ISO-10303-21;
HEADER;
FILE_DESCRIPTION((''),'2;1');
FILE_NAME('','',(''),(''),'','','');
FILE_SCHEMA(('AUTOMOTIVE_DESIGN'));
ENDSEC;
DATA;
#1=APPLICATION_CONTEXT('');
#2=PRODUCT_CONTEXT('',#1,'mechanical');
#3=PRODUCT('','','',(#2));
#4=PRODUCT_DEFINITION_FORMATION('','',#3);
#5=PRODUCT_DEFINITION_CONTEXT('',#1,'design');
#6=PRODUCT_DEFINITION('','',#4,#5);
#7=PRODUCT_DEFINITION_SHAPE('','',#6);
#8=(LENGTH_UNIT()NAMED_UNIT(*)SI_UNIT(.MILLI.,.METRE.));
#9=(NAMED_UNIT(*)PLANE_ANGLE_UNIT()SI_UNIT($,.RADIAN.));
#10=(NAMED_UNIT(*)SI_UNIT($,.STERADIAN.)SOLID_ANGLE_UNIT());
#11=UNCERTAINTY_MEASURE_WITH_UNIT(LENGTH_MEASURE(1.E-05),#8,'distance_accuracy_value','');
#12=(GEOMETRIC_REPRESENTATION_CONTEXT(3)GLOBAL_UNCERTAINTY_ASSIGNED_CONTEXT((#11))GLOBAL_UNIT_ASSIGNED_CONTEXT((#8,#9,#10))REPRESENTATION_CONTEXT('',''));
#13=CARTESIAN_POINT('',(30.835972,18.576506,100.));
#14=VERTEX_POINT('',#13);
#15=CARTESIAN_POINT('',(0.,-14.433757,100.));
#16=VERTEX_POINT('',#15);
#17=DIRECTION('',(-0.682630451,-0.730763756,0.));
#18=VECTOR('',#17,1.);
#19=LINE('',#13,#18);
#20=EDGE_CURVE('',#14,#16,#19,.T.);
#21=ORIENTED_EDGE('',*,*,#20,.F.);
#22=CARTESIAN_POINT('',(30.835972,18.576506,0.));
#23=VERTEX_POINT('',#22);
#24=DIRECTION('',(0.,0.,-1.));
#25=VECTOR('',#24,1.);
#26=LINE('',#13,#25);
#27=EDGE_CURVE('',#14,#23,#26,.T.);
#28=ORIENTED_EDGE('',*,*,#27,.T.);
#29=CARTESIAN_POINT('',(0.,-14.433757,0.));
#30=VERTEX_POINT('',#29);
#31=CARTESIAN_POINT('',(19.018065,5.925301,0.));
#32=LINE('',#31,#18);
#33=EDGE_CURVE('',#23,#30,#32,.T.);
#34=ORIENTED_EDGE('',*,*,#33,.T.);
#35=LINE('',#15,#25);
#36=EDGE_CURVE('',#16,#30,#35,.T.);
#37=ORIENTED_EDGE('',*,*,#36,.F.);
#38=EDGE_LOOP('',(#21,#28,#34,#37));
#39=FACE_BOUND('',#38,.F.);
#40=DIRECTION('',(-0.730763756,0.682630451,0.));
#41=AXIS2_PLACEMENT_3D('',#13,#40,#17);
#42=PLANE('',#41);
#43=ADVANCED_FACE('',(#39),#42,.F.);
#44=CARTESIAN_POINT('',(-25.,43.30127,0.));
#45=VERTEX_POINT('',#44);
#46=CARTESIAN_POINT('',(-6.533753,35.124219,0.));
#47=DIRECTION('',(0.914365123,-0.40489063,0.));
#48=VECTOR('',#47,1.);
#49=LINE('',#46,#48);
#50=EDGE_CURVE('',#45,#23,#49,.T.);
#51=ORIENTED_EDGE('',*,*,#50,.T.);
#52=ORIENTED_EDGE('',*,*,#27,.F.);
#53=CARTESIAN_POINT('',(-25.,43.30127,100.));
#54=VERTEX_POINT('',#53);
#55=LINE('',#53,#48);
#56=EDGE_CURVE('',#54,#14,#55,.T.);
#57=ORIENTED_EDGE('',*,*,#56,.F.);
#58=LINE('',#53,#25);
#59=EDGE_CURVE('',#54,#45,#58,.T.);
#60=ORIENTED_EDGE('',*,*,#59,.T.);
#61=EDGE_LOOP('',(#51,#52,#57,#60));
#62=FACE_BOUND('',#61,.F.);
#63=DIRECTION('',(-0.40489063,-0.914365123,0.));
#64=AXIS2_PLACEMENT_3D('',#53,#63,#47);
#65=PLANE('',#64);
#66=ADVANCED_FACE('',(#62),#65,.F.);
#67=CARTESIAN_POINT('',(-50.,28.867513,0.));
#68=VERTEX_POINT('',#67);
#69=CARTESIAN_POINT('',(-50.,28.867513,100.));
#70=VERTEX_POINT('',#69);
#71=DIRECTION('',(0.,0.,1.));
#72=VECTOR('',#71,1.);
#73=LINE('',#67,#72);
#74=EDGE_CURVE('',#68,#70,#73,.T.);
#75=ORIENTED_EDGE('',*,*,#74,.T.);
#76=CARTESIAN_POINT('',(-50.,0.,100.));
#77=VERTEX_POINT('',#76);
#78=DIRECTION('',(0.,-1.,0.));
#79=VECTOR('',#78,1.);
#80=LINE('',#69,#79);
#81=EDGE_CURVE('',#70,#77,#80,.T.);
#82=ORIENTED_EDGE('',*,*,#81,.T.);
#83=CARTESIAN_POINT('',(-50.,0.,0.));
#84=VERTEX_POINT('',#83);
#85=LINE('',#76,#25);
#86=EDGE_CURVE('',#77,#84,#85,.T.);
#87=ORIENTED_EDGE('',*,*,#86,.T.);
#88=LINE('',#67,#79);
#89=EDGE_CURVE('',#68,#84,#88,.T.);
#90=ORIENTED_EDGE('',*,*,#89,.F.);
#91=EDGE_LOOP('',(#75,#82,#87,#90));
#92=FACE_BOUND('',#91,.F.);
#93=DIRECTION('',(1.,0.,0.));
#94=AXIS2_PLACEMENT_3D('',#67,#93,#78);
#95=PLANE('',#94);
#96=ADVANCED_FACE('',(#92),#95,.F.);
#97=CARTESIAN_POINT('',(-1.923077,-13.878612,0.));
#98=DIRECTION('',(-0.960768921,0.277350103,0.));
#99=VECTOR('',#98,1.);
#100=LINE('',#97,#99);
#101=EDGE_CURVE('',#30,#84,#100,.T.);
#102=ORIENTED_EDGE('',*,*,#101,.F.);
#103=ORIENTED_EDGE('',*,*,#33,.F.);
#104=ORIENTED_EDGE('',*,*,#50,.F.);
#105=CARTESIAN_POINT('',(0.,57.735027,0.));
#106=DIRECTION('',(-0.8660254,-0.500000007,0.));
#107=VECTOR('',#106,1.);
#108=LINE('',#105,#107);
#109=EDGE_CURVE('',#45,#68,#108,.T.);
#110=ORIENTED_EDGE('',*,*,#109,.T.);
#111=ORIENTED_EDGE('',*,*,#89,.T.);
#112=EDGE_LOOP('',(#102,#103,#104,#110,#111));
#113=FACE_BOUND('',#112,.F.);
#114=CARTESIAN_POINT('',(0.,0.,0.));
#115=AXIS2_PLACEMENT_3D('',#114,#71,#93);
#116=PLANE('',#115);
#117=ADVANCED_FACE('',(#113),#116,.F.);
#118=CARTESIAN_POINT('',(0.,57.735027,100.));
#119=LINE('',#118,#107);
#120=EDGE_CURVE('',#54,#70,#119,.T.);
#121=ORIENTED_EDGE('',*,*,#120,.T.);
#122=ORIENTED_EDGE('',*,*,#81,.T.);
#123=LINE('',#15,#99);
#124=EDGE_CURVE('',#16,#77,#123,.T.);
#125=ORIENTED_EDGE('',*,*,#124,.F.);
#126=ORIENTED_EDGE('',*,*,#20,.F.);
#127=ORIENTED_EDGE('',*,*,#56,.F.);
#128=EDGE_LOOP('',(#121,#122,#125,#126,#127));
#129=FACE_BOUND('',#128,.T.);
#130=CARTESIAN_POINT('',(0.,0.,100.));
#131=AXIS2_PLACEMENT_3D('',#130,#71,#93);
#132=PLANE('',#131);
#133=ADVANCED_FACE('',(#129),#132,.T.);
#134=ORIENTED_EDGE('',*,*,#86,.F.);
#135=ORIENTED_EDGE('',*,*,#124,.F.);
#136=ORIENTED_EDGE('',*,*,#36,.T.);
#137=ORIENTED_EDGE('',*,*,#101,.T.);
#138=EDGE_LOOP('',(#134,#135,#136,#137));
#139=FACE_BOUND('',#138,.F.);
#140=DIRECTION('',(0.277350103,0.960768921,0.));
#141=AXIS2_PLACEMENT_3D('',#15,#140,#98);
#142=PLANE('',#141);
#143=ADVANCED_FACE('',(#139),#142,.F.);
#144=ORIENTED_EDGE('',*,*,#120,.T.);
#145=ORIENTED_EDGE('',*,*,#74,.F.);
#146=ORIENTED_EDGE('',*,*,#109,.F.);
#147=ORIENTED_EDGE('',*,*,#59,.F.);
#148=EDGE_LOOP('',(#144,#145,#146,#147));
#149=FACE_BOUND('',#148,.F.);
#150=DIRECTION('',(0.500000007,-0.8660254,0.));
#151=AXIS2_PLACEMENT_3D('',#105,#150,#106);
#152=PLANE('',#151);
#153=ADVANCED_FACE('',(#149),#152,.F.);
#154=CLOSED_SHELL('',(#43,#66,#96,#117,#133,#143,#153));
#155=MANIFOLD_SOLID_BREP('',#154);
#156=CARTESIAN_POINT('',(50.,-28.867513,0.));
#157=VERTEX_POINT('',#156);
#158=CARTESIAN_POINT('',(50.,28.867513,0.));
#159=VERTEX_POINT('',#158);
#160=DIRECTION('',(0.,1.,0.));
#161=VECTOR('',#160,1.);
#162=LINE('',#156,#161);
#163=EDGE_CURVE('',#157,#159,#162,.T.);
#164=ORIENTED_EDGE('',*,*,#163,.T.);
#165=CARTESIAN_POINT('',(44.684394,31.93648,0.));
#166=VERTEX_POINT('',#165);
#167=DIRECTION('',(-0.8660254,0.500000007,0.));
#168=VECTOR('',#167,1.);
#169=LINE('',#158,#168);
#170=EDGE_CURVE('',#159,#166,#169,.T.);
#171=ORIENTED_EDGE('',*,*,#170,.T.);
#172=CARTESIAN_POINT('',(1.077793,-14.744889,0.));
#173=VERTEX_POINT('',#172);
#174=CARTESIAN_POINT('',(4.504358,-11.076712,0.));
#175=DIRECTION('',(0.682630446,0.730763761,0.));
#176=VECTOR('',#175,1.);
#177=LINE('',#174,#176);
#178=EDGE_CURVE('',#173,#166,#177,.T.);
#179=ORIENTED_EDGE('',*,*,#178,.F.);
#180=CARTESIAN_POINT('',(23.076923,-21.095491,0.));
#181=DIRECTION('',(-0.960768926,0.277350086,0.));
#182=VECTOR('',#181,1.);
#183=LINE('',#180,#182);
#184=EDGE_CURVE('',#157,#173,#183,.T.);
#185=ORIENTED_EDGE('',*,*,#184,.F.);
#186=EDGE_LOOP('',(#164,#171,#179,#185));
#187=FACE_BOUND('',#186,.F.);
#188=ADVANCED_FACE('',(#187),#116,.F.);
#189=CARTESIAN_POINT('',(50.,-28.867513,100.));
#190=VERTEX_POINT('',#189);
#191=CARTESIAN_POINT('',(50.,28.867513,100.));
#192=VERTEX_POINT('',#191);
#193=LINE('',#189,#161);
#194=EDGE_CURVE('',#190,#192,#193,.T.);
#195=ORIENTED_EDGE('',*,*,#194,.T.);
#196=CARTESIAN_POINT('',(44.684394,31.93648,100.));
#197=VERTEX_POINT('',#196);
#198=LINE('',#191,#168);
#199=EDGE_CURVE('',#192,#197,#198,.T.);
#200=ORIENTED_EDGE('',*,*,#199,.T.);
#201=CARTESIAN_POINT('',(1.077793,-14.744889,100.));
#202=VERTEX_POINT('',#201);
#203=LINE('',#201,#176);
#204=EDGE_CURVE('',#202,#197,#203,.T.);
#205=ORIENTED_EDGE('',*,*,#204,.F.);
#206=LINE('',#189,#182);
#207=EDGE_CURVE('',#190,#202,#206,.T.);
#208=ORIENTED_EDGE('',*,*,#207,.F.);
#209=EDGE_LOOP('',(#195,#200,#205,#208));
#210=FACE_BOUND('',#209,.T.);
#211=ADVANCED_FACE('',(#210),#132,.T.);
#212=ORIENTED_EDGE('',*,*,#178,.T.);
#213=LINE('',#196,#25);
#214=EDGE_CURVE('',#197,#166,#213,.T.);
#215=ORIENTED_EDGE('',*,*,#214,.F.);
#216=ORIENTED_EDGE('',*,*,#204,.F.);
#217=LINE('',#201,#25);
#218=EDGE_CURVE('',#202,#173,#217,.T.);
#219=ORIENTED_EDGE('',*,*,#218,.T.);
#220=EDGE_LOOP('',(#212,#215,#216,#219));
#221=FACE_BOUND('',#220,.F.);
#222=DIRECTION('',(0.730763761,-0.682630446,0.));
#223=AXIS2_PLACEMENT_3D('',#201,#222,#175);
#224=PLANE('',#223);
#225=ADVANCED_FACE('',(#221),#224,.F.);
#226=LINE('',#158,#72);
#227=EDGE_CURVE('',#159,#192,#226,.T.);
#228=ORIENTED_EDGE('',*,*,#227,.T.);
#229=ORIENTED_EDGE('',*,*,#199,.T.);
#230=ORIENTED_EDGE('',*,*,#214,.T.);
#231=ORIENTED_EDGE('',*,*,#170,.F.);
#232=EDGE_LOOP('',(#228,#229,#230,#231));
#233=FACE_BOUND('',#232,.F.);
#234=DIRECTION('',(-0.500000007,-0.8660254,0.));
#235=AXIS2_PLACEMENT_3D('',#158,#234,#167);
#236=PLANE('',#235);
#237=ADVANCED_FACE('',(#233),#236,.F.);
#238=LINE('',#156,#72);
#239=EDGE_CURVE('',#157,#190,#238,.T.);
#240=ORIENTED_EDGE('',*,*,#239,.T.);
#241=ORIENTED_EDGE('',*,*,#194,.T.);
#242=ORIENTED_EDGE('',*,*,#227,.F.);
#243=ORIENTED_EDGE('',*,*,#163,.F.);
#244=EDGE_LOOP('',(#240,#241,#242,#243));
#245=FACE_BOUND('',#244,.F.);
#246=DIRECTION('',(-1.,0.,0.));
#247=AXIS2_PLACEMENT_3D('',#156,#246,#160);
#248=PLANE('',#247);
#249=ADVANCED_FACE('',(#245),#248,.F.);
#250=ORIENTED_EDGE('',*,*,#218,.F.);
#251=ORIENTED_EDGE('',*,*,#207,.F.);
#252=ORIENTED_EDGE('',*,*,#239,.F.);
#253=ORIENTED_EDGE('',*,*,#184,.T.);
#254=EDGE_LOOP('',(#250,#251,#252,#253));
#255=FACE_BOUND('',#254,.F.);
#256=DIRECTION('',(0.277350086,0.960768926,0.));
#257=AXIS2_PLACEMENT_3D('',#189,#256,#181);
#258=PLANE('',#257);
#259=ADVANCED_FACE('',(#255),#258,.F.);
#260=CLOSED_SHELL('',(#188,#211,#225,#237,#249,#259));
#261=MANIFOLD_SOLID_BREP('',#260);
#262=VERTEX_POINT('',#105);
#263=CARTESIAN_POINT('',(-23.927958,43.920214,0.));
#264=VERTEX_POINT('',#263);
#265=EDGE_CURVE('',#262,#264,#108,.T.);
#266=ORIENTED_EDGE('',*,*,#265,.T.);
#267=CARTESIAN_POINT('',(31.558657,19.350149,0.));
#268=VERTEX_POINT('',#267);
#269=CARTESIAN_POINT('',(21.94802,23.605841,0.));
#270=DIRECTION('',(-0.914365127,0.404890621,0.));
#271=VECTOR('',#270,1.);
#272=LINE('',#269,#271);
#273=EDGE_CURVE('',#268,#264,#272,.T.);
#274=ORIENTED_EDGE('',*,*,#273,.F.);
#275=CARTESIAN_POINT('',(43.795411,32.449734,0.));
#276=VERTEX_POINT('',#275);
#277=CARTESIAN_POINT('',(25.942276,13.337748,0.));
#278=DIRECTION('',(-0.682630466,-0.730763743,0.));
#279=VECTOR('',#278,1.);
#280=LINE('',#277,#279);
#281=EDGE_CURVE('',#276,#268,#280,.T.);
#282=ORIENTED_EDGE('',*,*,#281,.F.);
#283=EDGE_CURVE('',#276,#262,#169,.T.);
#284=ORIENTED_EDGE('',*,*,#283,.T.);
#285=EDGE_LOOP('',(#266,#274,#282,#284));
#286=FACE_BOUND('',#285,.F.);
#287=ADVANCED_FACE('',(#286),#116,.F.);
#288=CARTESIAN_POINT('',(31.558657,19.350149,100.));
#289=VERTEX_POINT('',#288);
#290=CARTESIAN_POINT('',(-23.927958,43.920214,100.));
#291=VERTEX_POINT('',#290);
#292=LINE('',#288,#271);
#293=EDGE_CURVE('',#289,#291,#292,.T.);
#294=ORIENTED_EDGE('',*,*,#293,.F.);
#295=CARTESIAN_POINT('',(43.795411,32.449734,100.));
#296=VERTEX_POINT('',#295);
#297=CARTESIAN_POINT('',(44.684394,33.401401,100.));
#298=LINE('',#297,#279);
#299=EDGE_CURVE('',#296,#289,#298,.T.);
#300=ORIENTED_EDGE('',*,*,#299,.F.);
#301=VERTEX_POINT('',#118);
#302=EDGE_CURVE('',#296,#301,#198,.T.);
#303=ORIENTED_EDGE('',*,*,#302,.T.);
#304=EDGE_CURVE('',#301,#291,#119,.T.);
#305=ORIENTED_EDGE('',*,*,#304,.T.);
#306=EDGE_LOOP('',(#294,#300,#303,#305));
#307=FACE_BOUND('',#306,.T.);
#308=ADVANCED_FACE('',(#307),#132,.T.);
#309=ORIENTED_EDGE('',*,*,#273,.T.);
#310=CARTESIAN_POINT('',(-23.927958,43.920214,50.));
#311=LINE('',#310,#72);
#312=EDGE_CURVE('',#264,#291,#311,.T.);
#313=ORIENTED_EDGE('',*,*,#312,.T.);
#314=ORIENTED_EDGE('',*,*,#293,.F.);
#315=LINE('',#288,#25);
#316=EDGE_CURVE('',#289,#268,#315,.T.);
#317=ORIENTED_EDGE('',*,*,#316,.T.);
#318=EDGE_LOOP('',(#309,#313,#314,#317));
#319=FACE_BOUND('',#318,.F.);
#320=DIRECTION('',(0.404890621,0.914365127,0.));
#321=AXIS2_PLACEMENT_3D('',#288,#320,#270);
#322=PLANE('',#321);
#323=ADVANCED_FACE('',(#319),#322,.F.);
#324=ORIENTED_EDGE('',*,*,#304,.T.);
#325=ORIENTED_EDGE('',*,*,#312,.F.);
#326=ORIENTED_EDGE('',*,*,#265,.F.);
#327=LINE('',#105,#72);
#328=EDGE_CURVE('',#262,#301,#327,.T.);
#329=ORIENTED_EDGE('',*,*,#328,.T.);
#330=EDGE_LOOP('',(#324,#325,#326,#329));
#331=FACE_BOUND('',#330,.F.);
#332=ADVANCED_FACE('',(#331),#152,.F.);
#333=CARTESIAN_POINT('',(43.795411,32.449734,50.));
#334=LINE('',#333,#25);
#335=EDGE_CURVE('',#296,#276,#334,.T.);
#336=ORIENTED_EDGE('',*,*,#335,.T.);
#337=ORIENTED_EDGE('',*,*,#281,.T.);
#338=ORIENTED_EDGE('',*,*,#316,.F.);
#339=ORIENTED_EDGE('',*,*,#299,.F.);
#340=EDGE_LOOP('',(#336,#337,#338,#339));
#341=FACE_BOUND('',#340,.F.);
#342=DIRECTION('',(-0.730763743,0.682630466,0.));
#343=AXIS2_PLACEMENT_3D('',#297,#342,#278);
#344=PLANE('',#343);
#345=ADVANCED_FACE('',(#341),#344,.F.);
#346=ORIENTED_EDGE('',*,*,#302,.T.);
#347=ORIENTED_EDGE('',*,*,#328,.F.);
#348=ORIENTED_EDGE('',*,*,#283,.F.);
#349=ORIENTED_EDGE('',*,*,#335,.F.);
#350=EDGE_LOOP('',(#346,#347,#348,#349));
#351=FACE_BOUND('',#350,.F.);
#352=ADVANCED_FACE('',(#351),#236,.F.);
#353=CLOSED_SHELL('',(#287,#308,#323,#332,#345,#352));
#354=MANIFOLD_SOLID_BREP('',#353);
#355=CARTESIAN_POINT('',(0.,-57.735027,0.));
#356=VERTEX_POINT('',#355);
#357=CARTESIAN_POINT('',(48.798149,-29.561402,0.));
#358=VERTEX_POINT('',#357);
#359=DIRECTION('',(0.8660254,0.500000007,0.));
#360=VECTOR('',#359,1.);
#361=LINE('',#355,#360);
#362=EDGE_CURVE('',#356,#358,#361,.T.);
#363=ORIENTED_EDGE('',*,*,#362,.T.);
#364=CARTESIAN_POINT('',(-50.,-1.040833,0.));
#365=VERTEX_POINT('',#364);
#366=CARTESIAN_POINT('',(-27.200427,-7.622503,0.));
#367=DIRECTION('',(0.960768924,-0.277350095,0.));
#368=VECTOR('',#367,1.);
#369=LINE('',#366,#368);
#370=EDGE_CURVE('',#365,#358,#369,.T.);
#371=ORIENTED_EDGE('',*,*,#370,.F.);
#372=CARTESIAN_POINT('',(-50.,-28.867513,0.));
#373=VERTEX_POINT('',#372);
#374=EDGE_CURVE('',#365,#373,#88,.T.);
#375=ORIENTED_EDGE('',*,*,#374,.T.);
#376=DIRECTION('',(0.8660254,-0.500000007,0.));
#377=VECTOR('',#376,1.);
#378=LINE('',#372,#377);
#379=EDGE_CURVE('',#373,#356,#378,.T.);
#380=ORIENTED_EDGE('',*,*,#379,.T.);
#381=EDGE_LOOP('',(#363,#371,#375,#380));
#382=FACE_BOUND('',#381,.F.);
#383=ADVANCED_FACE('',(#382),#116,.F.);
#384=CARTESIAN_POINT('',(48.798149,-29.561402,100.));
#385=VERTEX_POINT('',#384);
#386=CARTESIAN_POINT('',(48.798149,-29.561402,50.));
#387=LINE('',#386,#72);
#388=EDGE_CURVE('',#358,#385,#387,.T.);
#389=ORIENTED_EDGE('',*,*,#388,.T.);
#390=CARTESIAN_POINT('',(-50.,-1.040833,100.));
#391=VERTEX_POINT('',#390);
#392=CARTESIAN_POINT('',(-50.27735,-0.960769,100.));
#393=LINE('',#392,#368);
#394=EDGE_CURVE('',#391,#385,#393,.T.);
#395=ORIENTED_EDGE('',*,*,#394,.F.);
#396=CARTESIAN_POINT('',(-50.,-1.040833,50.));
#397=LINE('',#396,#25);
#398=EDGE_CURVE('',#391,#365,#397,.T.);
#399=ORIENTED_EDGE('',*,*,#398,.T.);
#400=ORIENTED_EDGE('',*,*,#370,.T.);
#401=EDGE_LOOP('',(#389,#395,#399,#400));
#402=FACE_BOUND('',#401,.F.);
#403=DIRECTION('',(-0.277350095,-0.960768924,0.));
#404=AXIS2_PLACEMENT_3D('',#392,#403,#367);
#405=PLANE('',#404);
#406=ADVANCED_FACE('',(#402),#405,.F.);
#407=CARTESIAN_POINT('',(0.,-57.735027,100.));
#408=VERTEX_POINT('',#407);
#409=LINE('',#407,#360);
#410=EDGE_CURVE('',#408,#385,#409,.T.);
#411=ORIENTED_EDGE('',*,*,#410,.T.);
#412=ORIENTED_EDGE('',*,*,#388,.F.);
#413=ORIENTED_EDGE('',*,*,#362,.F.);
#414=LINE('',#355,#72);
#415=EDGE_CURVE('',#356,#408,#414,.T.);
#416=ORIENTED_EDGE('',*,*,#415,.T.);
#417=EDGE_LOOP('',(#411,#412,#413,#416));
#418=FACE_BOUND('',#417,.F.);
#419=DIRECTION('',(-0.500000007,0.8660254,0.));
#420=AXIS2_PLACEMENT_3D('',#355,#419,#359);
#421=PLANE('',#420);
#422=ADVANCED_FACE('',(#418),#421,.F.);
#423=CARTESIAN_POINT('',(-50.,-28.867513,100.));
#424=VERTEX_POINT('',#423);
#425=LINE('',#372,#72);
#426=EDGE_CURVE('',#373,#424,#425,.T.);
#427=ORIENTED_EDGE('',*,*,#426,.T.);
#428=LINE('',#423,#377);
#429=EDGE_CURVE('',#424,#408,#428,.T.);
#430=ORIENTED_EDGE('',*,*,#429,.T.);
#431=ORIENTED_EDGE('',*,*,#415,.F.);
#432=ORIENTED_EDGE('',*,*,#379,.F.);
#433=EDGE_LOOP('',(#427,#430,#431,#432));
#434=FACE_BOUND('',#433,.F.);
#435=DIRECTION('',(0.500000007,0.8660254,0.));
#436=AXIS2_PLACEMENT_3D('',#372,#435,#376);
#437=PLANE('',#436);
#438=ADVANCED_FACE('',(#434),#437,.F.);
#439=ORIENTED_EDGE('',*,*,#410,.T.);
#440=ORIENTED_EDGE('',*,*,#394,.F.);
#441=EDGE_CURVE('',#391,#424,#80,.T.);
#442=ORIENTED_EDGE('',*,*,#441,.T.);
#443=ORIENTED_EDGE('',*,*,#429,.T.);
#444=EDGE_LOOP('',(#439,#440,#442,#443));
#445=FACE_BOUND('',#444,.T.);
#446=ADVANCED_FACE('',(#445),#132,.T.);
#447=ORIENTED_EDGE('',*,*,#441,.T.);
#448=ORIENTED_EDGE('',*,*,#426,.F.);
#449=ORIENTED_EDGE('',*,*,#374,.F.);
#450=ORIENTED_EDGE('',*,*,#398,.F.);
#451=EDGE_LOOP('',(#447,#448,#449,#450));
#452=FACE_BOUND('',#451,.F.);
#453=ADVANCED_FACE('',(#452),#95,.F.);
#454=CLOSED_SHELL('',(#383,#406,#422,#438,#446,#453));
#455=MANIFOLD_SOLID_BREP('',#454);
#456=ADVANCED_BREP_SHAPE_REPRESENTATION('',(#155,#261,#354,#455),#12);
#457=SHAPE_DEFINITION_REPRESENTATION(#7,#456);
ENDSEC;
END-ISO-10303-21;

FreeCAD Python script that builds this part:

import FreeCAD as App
import Part
import Sketcher

V = App.Vector
Q = App.Units.Quantity


def add_polygon(sketch, points):
    """Adds a closed chain of lines whose ends are joined by coincident constraints."""
    first, n = sketch.GeometryCount, len(points)
    for a, b in zip(points, points[1:] + points[:1]):
        sketch.addGeometry(Part.LineSegment(App.Vector(*a, 0), App.Vector(*b, 0)), False)
    for i in range(n):
        sketch.addConstraint(Sketcher.Constraint("Coincident", first + i, 2, first + (i + 1) % n, 1))

doc = App.newDocument("Part")
body = doc.addObject("PartDesign::Body", "Body")
body.AllowCompound = True

# Sketch on XY plane
sketch1 = doc.addObject("Sketcher::SketchObject", "Sketch")
body.addObject(sketch1)
sketch1.AttachmentSupport = (doc.XY_Plane, [""])
sketch1.MapMode = "FlatFace"
add_polygon(sketch1, [(-50, 29), (-50, -29), (0, -58), (50, -29), (50, 29), (0, 58)])  # lines 0-5
sketch1.addConstraint(Sketcher.Constraint("Vertical", 0))
sketch1.addConstraint(Sketcher.Constraint("Vertical", 3))
sketch1.addConstraint(Sketcher.Constraint("Symmetric", 0, 2, 3, 2, -1, 1))
sketch1.addConstraint(Sketcher.Constraint("Symmetric", 1, 2, 4, 2, -1, 1))
sketch1.addConstraint(Sketcher.Constraint("PointOnObject", 1, 2, -2))
sketch1.addConstraint(Sketcher.Constraint("Parallel", 2, 5))
sketch1.addConstraint(Sketcher.Constraint("Horizontal", 0, 2, 2, 2))
sketch1.addConstraint(Sketcher.Constraint("Angle", 1, Q("-30 deg")))
sketch1.addConstraint(Sketcher.Constraint("DistanceX", 0, 2, -1, 1, Q("50 mm")))
sketch1.addConstraint(Sketcher.Constraint("DistanceY", 0, 2, 0, 1, Q("57.735026 mm")))
pad1 = doc.addObject("PartDesign::Pad", "Pad")
body.addObject(pad1)
pad1.Profile = sketch1
pad1.Length = 100

# Sketch on XY plane
sketch2 = doc.addObject("Sketcher::SketchObject", "Sketch001")
body.addObject(sketch2)
sketch2.AttachmentSupport = (doc.XY_Plane, [""])
sketch2.MapMode = "FlatFace"
sketch2.AttachmentOffset = App.Placement(V(0, 0, 100), App.Rotation())
add_polygon(sketch2, [(0, -14.4), (-50, 0), (-50.3, -1), (55.5, -31.5), (50, -28.9), (1.1, -14.7), (44.7, 31.9), (44.7, 33.4), (31.6, 19.4), (-35, 48.8), (-25, 43.3), (30.8, 18.6)])  # lines 0-11
sketch2.addConstraint(Sketcher.Constraint("Vertical", 6))
sketch2.addConstraint(Sketcher.Constraint("PointOnObject", 0, 2, -1))
sketch2.addConstraint(Sketcher.Constraint("PointOnObject", 11, 2, -2))
sketch2.addConstraint(Sketcher.Constraint("Perpendicular", 0, 1))
sketch2.addConstraint(Sketcher.Constraint("Perpendicular", 1, 2))
sketch2.addConstraint(Sketcher.Constraint("Parallel", 2, 4))
sketch2.addConstraint(Sketcher.Constraint("Parallel", 5, 7))
sketch2.addConstraint(Sketcher.Constraint("Parallel", 8, 10))
sketch2.addConstraint(Sketcher.Constraint("Parallel", 7, 11))
sketch2.addConstraint(Sketcher.Constraint("Distance", 1, Q("1 mm")))
sketch2.addConstraint(Sketcher.Constraint("DistanceX", 0, 2, -1, 1, Q("50 mm")))
sketch2.addConstraint(Sketcher.Constraint("DistanceX", -1, 1, 3, 2, Q("50 mm")))
sketch2.addConstraint(Sketcher.Constraint("DistanceX", 9, 2, -1, 1, Q("25 mm")))
sketch2.addConstraint(Sketcher.Constraint("DistanceY", 6, 1, 6, 2, Q("1.464921 mm")))
sketch2.addConstraint(Sketcher.Constraint("DistanceY", -1, 1, 6, 2, Q("33.401401 mm")))
sketch2.addConstraint(Sketcher.Constraint("DistanceX", 4, 2, 5, 2, Q("43.606601 mm")))
sketch2.addConstraint(Sketcher.Constraint("Distance", 0, Q("52.04165 mm")))
sketch2.addConstraint(Sketcher.Constraint("Distance", 2, Q("110.080561 mm")))
sketch2.addConstraint(Sketcher.Constraint("Distance", 3, Q("6.080061 mm")))
sketch2.addConstraint(Sketcher.Constraint("Distance", 10, Q("61.065291 mm")))
sketch2.addConstraint(Sketcher.Constraint("DistanceY", 4, 2, -1, 1, Q("14.744889 mm")))
sketch2.addConstraint(Sketcher.Constraint("DistanceY", -1, 1, 7, 2, Q("19.350149 mm")))
sketch2.addConstraint(Sketcher.Constraint("DistanceY", -1, 1, 9, 2, Q("43.30127 mm")))
sketch2.addConstraint(Sketcher.Constraint("DistanceX", 8, 2, 4, 2, Q("36.075249 mm")))
pocket1 = doc.addObject("PartDesign::Pocket", "Pocket")
body.addObject(pocket1)
pocket1.Profile = sketch2
pocket1.Length = 110.7

doc.recompute()
